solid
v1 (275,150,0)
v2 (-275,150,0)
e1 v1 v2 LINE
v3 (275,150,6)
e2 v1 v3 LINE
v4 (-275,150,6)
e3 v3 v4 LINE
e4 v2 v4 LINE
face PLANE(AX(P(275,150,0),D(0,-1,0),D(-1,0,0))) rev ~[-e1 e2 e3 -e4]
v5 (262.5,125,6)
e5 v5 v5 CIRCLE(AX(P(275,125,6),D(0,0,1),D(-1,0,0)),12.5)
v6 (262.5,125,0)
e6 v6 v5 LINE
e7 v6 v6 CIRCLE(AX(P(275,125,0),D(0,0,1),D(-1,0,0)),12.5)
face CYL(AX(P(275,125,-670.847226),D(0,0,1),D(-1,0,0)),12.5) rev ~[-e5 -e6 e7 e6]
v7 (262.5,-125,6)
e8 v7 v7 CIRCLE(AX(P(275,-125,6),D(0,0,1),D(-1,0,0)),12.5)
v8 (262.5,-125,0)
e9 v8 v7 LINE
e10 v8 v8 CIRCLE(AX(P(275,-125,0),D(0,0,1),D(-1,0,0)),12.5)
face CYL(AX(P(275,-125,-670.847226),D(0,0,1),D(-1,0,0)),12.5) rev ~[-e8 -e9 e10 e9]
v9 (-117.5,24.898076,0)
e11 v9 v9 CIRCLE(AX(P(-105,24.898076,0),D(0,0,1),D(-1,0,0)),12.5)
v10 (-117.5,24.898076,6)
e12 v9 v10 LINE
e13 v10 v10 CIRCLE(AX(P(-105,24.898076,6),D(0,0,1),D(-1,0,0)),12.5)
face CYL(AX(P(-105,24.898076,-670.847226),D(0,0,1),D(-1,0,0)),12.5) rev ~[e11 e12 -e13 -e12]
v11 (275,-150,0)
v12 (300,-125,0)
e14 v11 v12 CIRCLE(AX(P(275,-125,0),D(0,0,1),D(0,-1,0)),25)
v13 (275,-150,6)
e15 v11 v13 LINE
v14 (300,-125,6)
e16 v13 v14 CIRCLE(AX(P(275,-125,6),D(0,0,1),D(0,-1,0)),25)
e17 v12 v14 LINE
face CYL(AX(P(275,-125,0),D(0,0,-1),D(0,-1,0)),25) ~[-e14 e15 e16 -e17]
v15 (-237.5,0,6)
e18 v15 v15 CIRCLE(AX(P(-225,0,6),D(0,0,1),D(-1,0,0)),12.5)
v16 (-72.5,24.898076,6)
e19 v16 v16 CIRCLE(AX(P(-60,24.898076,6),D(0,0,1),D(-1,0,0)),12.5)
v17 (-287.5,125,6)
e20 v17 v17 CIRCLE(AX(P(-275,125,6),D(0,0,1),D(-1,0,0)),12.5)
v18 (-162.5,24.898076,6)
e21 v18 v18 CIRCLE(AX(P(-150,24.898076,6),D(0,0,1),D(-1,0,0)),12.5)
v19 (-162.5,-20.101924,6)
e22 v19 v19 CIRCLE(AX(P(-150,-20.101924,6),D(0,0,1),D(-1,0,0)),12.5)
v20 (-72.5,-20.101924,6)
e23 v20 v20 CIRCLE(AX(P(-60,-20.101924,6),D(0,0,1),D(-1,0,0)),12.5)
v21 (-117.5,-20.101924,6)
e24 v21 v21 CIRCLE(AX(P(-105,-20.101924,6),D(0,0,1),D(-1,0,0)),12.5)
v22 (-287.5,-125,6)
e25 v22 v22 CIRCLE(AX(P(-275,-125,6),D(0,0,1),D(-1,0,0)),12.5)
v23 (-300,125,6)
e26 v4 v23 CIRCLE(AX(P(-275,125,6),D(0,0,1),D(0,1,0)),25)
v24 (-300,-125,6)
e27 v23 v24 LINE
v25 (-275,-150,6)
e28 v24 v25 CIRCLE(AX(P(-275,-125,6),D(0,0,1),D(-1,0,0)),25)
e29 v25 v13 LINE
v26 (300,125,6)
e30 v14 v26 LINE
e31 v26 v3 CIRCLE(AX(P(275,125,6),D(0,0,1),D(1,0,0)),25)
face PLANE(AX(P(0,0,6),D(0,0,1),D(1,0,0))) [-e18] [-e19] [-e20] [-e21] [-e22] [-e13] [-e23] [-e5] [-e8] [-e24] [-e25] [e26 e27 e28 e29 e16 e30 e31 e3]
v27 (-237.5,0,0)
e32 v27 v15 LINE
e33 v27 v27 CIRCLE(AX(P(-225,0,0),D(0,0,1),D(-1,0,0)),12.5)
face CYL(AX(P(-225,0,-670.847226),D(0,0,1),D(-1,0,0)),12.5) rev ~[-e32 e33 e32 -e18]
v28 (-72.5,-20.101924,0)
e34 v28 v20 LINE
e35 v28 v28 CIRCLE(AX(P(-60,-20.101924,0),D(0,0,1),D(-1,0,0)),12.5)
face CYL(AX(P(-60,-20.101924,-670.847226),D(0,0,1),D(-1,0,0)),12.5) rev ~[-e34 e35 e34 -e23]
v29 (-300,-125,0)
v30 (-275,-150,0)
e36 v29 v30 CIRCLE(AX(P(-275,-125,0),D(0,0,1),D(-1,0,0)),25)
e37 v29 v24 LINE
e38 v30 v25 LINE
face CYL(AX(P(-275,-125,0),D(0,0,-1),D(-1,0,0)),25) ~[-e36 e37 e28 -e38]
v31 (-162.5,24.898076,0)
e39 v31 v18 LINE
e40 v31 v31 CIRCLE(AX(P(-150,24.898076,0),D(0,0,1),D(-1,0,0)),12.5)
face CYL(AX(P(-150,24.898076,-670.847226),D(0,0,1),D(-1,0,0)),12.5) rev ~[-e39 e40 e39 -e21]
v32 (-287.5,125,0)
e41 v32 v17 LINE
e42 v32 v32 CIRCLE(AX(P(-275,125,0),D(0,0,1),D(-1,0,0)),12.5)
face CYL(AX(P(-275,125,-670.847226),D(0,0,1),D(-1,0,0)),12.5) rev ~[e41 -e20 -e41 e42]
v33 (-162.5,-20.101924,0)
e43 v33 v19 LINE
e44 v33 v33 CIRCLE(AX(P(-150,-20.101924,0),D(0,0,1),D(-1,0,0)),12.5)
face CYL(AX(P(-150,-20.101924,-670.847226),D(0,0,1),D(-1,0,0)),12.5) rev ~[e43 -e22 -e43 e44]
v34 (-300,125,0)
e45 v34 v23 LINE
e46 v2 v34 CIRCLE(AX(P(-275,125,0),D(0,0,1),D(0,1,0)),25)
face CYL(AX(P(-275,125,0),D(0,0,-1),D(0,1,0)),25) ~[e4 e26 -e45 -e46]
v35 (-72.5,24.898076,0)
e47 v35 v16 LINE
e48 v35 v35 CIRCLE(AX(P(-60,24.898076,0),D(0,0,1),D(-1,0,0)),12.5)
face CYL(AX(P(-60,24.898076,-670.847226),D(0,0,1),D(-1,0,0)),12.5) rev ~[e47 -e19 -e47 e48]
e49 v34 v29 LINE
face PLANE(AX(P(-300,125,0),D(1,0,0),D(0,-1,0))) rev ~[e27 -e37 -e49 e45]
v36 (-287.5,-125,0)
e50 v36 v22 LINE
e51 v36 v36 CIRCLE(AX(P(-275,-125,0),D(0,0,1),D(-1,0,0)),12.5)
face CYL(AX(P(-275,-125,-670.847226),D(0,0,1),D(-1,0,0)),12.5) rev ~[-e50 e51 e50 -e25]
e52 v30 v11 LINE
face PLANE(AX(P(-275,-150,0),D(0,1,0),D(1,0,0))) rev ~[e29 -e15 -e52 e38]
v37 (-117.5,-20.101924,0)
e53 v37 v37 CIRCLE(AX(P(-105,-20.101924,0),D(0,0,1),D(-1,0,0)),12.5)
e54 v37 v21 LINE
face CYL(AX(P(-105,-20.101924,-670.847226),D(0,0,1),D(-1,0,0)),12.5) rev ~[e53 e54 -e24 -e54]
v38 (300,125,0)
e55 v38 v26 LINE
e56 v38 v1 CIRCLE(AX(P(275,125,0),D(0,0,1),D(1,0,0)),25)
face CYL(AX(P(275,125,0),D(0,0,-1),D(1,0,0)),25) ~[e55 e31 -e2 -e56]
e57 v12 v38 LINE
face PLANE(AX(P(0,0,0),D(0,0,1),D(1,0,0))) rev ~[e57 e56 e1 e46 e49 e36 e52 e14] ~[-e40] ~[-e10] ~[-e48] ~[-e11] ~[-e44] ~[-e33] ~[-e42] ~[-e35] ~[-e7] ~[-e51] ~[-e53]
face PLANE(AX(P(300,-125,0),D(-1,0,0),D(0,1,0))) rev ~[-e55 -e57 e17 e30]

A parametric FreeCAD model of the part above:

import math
import FreeCAD as App
import Part
import Sketcher

doc = App.newDocument("Part")
body = doc.addObject("PartDesign::Body", "Body")

# Sketch on XY plane
sketch1 = body.newObject("Sketcher::SketchObject", "Sketch")
sketch1.AttachmentSupport = (doc.getObject("XY_Plane"), [""])
sketch1.MapMode = "FlatFace"
sketch1.addGeometry([
    Part.LineSegment(App.Vector(-275, -150, 0), App.Vector(275, -150, 0)),  # 0
    Part.ArcOfCircle(Part.Circle(App.Vector(275, -125, 0), App.Vector(0, 0, 1), 25), math.radians(-90), math.radians(0)),  # 1
    Part.LineSegment(App.Vector(300, -125, 0), App.Vector(300, 125, 0)),  # 2
    Part.ArcOfCircle(Part.Circle(App.Vector(275, 125, 0), App.Vector(0, 0, 1), 25), math.radians(0), math.radians(90)),  # 3
    Part.LineSegment(App.Vector(275, 150, 0), App.Vector(-275, 150, 0)),  # 4
    Part.ArcOfCircle(Part.Circle(App.Vector(-275, 125, 0), App.Vector(0, 0, 1), 25), math.radians(90), math.radians(180)),  # 5
    Part.LineSegment(App.Vector(-300, 125, 0), App.Vector(-300, -125, 0)),  # 6
    Part.ArcOfCircle(Part.Circle(App.Vector(-275, -125, 0), App.Vector(0, 0, 1), 25), math.radians(180), math.radians(270)),  # 7
], False)
sketch1.addConstraint([
    Sketcher.Constraint("Tangent", 0, 2, 1, 1),
    Sketcher.Constraint("Tangent", 1, 2, 2, 1),
    Sketcher.Constraint("Tangent", 2, 2, 3, 1),
    Sketcher.Constraint("Tangent", 3, 2, 4, 1),
    Sketcher.Constraint("Tangent", 4, 2, 5, 1),
    Sketcher.Constraint("Tangent", 5, 2, 6, 1),
    Sketcher.Constraint("Tangent", 6, 2, 7, 1),
    Sketcher.Constraint("Tangent", 7, 2, 0, 1),
    Sketcher.Constraint("Horizontal", 0),
    Sketcher.Constraint("Vertical", 2),
    Sketcher.Constraint("Horizontal", 4),
    Sketcher.Constraint("Vertical", 6),
    Sketcher.Constraint("Equal", 1, 3),
    Sketcher.Constraint("Equal", 3, 5),
    Sketcher.Constraint("Equal", 5, 7),
    Sketcher.Constraint("Symmetric", 1, 3, 5, 3, -1, 1),
    Sketcher.Constraint("Radius", 1, 25.0),
    Sketcher.Constraint("DistanceX", 0, 1, 0, 2, 550.0),
    Sketcher.Constraint("DistanceY", 2, 1, 2, 2, 250.0),
])
pad1 = body.newObject("PartDesign::Pad", "Pad")
pad1.Profile = sketch1
pad1.Length = 6

# Sketch on XY plane
sketch2 = body.newObject("Sketcher::SketchObject", "Sketch001")
sketch2.AttachmentSupport = (doc.getObject("XY_Plane"), [""])
sketch2.MapMode = "FlatFace"
sketch2.addGeometry(Part.Circle(App.Vector(-275, -125, 0), App.Vector(0, 0, 1), 12), False)
sketch2.addConstraint([
    Sketcher.Constraint("Diameter", 0, 25.0),
    Sketcher.Constraint("DistanceX", 0, 3, -1, 1, 275.0),
    Sketcher.Constraint("DistanceY", 0, 3, -1, 1, 125.0),
])
doc.recompute()
hole = body.newObject("PartDesign::Hole", "Hole")
hole.Profile = sketch2
hole.ThreadType = "None"
hole.Diameter = 25
hole.DepthType = "ThroughAll"
hole.Reversed = True

# Sketch on XY plane
sketch3 = body.newObject("Sketcher::SketchObject", "Sketch002")
sketch3.AttachmentSupport = (doc.getObject("XY_Plane"), [""])
sketch3.MapMode = "FlatFace"
sketch3.addGeometry([
    Part.Circle(App.Vector(-275, 125, 0), App.Vector(0, 0, 1), 12),
    Part.Circle(App.Vector(275, -125, 0), App.Vector(0, 0, 1), 12),
], False)
sketch3.addConstraint([
    Sketcher.Constraint("Equal", 0, 1),
    Sketcher.Constraint("Symmetric", 0, 3, 1, 3, -1, 1),
    Sketcher.Constraint("Diameter", 0, 25.0),
    Sketcher.Constraint("DistanceX", 0, 3, -1, 1, 275.0),
    Sketcher.Constraint("DistanceY", -1, 1, 0, 3, 125.0),
])
doc.recompute()
hole2 = body.newObject("PartDesign::Hole", "Hole001")
hole2.Profile = sketch3
hole2.ThreadType = "None"
hole2.Diameter = 25
hole2.DepthType = "ThroughAll"
hole2.Reversed = True

# Sketch on XY plane
sketch4 = body.newObject("Sketcher::SketchObject", "Sketch003")
sketch4.AttachmentSupport = (doc.getObject("XY_Plane"), [""])
sketch4.MapMode = "FlatFace"
sketch4.addGeometry(Part.Circle(App.Vector(275, 125, 0), App.Vector(0, 0, 1), 12), False)
sketch4.addConstraint([
    Sketcher.Constraint("Diameter", 0, 25.0),
    Sketcher.Constraint("DistanceX", -1, 1, 0, 3, 275.0),
    Sketcher.Constraint("DistanceY", -1, 1, 0, 3, 125.0),
])
doc.recompute()
hole3 = body.newObject("PartDesign::Hole", "Hole002")
hole3.Profile = sketch4
hole3.ThreadType = "None"
hole3.Diameter = 25
hole3.DepthType = "ThroughAll"
hole3.Reversed = True

# Sketch on XY plane
sketch5 = body.newObject("Sketcher::SketchObject", "Sketch004")
sketch5.AttachmentSupport = (doc.getObject("XY_Plane"), [""])
sketch5.MapMode = "FlatFace"
sketch5.addGeometry([
    Part.Circle(App.Vector(-150, 25, 0), App.Vector(0, 0, 1), 12),  # 0
    Part.Circle(App.Vector(-105, 25, 0), App.Vector(0, 0, 1), 12),  # 1
    Part.Circle(App.Vector(-60, 25, 0), App.Vector(0, 0, 1), 12),  # 2
    Part.Circle(App.Vector(-60, -20, 0), App.Vector(0, 0, 1), 12),  # 3
    Part.Circle(App.Vector(-105, -20, 0), App.Vector(0, 0, 1), 12),  # 4
    Part.Circle(App.Vector(-150, -20, 0), App.Vector(0, 0, 1), 12),  # 5
    Part.Circle(App.Vector(-225, 0, 0), App.Vector(0, 0, 1), 12),  # 6
], False)
sketch5.addConstraint([
    Sketcher.Constraint("Equal", 0, 1),
    Sketcher.Constraint("Equal", 1, 2),
    Sketcher.Constraint("Equal", 2, 3),
    Sketcher.Constraint("Equal", 3, 4),
    Sketcher.Constraint("Equal", 4, 5),
    Sketcher.Constraint("Equal", 5, 6),
    Sketcher.Constraint("PointOnObject", 6, 3, -1),
    Sketcher.Constraint("Horizontal", 0, 3, 1, 3),
    Sketcher.Constraint("Horizontal", 1, 3, 2, 3),
    Sketcher.Constraint("Horizontal", 3, 3, 4, 3),
    Sketcher.Constraint("Horizontal", 4, 3, 5, 3),
    Sketcher.Constraint("Vertical", 2, 3, 3, 3),
    Sketcher.Constraint("Vertical", 1, 3, 4, 3),
    Sketcher.Constraint("Vertical", 0, 3, 5, 3),
    Sketcher.Constraint("Diameter", 0, 25.0),
    Sketcher.Constraint("DistanceX", 0, 3, -1, 1, 150.0),
    Sketcher.Constraint("DistanceX", 1, 3, -1, 1, 105.0),
    Sketcher.Constraint("DistanceX", 2, 3, -1, 1, 60.0),
    Sketcher.Constraint("DistanceX", 6, 3, -1, 1, 225.0),
    Sketcher.Constraint("DistanceY", 3, 3, 2, 3, 45.0),
    Sketcher.Constraint("DistanceY", -1, 1, 0, 3, 24.898076),
])
doc.recompute()
hole4 = body.newObject("PartDesign::Hole", "Hole003")
hole4.Profile = sketch5
hole4.ThreadType = "None"
hole4.Diameter = 25
hole4.DepthType = "ThroughAll"
hole4.Reversed = True

doc.recompute()
